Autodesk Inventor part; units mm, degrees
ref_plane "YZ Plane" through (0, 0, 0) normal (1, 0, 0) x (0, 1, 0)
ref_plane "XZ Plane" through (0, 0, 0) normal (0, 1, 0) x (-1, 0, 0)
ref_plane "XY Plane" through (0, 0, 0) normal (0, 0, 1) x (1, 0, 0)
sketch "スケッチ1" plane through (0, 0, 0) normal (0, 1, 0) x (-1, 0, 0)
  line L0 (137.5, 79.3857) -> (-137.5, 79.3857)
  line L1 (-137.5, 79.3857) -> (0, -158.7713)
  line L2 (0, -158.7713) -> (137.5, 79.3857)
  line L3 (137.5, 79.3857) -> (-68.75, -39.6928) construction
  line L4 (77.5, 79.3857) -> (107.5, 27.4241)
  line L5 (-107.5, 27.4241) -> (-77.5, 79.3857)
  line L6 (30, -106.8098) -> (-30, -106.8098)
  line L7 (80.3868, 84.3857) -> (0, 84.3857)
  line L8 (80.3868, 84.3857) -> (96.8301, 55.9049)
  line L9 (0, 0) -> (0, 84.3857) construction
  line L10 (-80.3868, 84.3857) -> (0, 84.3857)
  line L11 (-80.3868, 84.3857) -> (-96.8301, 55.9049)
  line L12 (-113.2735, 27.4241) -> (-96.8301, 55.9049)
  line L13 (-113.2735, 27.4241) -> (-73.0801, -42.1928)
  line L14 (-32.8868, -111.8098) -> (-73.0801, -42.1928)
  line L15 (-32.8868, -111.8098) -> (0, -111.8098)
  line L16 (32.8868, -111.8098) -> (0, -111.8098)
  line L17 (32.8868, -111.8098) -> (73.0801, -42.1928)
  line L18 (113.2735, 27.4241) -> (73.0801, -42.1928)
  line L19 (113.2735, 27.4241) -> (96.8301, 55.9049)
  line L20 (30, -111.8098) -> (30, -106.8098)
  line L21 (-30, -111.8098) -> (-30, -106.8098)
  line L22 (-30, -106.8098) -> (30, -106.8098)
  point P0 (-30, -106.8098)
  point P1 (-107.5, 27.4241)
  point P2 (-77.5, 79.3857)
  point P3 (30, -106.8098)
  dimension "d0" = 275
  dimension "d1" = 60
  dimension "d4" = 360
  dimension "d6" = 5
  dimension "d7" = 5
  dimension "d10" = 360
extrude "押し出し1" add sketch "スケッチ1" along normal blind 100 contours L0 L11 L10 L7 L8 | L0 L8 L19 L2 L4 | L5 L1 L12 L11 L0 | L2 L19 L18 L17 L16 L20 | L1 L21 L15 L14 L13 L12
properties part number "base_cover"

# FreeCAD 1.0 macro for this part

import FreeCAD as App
import Part
import Sketcher
from FreeCAD import Vector
Q = App.Units.Quantity

doc = App.newDocument("Part")
params = doc.addObject("Spreadsheet::Sheet", "Params")
for row, (alias, value) in enumerate([
    ("sketch1_height", "5 mm"),
    ("sketch1_length", "60 mm"),
    ("sketch1_width", "155 mm"),
    ("pad1_length", "100 mm"),
], start=1):
    params.set(f"A{row}", alias)
    params.set(f"B{row}", "=" + value)
    params.setAlias(f"B{row}", alias)

body = doc.addObject("PartDesign::Body", "Body")

# Sketch on XZ plane
sketch1 = body.newObject("Sketcher::SketchObject", "Sketch")
sketch1.AttachmentSupport = (doc.getObject("XZ_Plane"), [""])
sketch1.MapMode = "FlatFace"
sketch1.addGeometry([
    Part.LineSegment(Vector(77.5, 79.3857, 0), Vector(-77.5, 79.3857, 0)),  # 0
    Part.LineSegment(Vector(-77.5, 79.3857, 0), Vector(-107.5, 27.4241, 0)),  # 1
    Part.LineSegment(Vector(-107.499969, 27.424118, 0), Vector(-29.999988, -106.809793, 0)),  # 2
    Part.LineSegment(Vector(-30, -106.8098, 0), Vector(-30, -111.8098, 0)),  # 3
    Part.LineSegment(Vector(-30, -111.8098, 0), Vector(-32.8868, -111.8098, 0)),  # 4
    Part.LineSegment(Vector(-32.8868, -111.8098, 0), Vector(-73.0801, -42.1928, 0)),  # 5
    Part.LineSegment(Vector(-73.0801, -42.1928, 0), Vector(-113.2735, 27.4241, 0)),  # 6
    Part.LineSegment(Vector(-113.2735, 27.4241, 0), Vector(-96.8301, 55.9049, 0)),  # 7
    Part.LineSegment(Vector(-96.8301, 55.9049, 0), Vector(-80.3868, 84.3857, 0)),  # 8
    Part.LineSegment(Vector(-80.3868, 84.3857, 0), Vector(80.3868, 84.3857, 0)),  # 9
    Part.LineSegment(Vector(80.3868, 84.3857, 0), Vector(96.8301, 55.9049, 0)),  # 10
    Part.LineSegment(Vector(96.8301, 55.9049, 0), Vector(113.2735, 27.4241, 0)),  # 11
    Part.LineSegment(Vector(113.2735, 27.4241, 0), Vector(73.0801, -42.1928, 0)),  # 12
    Part.LineSegment(Vector(73.0801, -42.1928, 0), Vector(32.8868, -111.8098, 0)),  # 13
    Part.LineSegment(Vector(32.8868, -111.8098, 0), Vector(30, -111.8098, 0)),  # 14
    Part.LineSegment(Vector(30, -111.8098, 0), Vector(30, -106.8098, 0)),  # 15
    Part.LineSegment(Vector(29.999988, -106.809793, 0), Vector(107.499969, 27.424118, 0)),  # 16
    Part.LineSegment(Vector(107.5, 27.4241, 0), Vector(77.5, 79.3857, 0)),  # 17
], False)
sketch1.addConstraint([
    Sketcher.Constraint("Coincident", 0, 2, 1, 1),
    Sketcher.Constraint("Coincident", 1, 2, 2, 1),
    Sketcher.Constraint("Coincident", 2, 2, 3, 1),
    Sketcher.Constraint("Coincident", 3, 2, 4, 1),
    Sketcher.Constraint("Coincident", 4, 2, 5, 1),
    Sketcher.Constraint("Coincident", 5, 2, 6, 1),
    Sketcher.Constraint("Coincident", 6, 2, 7, 1),
    Sketcher.Constraint("Coincident", 7, 2, 8, 1),
    Sketcher.Constraint("Coincident", 8, 2, 9, 1),
    Sketcher.Constraint("Coincident", 9, 2, 10, 1),
    Sketcher.Constraint("Coincident", 10, 2, 11, 1),
    Sketcher.Constraint("Coincident", 11, 2, 12, 1),
    Sketcher.Constraint("Coincident", 12, 2, 13, 1),
    Sketcher.Constraint("Coincident", 13, 2, 14, 1),
    Sketcher.Constraint("Coincident", 14, 2, 15, 1),
    Sketcher.Constraint("Coincident", 15, 2, 16, 1),
    Sketcher.Constraint("Coincident", 16, 2, 17, 1),
    Sketcher.Constraint("Coincident", 17, 2, 0, 1),
    Sketcher.Constraint("Horizontal", 0),
    Sketcher.Constraint("Vertical", 3),
    Sketcher.Constraint("Horizontal", 4),
    Sketcher.Constraint("Horizontal", 9),
    Sketcher.Constraint("Horizontal", 14),
    Sketcher.Constraint("Vertical", 15),
    Sketcher.Constraint("Symmetric", 7, 2, 10, 2, -2),
    Sketcher.Constraint("Symmetric", 6, 2, 11, 2, -2),
    Sketcher.Constraint("Symmetric", 5, 2, 12, 2, -2),
    Sketcher.Constraint("Symmetric", 4, 2, 13, 2, -2),
    Sketcher.Constraint("Symmetric", 2, 2, 15, 2, -2),
    Sketcher.Constraint("Symmetric", 1, 2, 16, 2, -2),
    Sketcher.Constraint("Parallel", 2, 5),
    Sketcher.Constraint("Parallel", 5, 6),
    Sketcher.Constraint("Parallel", 1, 7),
    Sketcher.Constraint("Parallel", 7, 8),
    Sketcher.Constraint("Parallel", 6, 10),
    Sketcher.Constraint("Parallel", 10, 11),
    Sketcher.Constraint("Parallel", 11, 17),
    Sketcher.Constraint("Horizontal", 1, 2, 6, 2),
    Sketcher.Constraint("Equal", 5, 6),
    Sketcher.Constraint("Equal", 7, 8),
    Sketcher.Constraint("DistanceY", 3, 2, 3, 1, 5.0),
    Sketcher.Constraint("Angle", 2, Q("-60 deg")),
    Sketcher.Constraint("Distance", 1, 60.0),
    Sketcher.Constraint("DistanceY", 0, 2, 8, 2, 5.0),
    Sketcher.Constraint("DistanceX", 3, 2, 14, 2, 60.0),
    Sketcher.Constraint("DistanceX", 0, 2, 0, 1, 155.0),
    Sketcher.Constraint("DistanceX", 5, 2, -1, 1, 73.08),
    Sketcher.Constraint("DistanceY", -1, 1, 1, 2, 27.424),
])
sketch1.setExpression("Constraints[40]", "Params.sketch1_height")
sketch1.setExpression("Constraints[42]", "Params.sketch1_length")
sketch1.setExpression("Constraints[45]", "Params.sketch1_width")
pad1 = body.newObject("PartDesign::Pad", "Pad")
pad1.Profile = sketch1
pad1.setExpression("Length", "Params.pad1_length")
pad1.Reversed = True

doc.recompute()
